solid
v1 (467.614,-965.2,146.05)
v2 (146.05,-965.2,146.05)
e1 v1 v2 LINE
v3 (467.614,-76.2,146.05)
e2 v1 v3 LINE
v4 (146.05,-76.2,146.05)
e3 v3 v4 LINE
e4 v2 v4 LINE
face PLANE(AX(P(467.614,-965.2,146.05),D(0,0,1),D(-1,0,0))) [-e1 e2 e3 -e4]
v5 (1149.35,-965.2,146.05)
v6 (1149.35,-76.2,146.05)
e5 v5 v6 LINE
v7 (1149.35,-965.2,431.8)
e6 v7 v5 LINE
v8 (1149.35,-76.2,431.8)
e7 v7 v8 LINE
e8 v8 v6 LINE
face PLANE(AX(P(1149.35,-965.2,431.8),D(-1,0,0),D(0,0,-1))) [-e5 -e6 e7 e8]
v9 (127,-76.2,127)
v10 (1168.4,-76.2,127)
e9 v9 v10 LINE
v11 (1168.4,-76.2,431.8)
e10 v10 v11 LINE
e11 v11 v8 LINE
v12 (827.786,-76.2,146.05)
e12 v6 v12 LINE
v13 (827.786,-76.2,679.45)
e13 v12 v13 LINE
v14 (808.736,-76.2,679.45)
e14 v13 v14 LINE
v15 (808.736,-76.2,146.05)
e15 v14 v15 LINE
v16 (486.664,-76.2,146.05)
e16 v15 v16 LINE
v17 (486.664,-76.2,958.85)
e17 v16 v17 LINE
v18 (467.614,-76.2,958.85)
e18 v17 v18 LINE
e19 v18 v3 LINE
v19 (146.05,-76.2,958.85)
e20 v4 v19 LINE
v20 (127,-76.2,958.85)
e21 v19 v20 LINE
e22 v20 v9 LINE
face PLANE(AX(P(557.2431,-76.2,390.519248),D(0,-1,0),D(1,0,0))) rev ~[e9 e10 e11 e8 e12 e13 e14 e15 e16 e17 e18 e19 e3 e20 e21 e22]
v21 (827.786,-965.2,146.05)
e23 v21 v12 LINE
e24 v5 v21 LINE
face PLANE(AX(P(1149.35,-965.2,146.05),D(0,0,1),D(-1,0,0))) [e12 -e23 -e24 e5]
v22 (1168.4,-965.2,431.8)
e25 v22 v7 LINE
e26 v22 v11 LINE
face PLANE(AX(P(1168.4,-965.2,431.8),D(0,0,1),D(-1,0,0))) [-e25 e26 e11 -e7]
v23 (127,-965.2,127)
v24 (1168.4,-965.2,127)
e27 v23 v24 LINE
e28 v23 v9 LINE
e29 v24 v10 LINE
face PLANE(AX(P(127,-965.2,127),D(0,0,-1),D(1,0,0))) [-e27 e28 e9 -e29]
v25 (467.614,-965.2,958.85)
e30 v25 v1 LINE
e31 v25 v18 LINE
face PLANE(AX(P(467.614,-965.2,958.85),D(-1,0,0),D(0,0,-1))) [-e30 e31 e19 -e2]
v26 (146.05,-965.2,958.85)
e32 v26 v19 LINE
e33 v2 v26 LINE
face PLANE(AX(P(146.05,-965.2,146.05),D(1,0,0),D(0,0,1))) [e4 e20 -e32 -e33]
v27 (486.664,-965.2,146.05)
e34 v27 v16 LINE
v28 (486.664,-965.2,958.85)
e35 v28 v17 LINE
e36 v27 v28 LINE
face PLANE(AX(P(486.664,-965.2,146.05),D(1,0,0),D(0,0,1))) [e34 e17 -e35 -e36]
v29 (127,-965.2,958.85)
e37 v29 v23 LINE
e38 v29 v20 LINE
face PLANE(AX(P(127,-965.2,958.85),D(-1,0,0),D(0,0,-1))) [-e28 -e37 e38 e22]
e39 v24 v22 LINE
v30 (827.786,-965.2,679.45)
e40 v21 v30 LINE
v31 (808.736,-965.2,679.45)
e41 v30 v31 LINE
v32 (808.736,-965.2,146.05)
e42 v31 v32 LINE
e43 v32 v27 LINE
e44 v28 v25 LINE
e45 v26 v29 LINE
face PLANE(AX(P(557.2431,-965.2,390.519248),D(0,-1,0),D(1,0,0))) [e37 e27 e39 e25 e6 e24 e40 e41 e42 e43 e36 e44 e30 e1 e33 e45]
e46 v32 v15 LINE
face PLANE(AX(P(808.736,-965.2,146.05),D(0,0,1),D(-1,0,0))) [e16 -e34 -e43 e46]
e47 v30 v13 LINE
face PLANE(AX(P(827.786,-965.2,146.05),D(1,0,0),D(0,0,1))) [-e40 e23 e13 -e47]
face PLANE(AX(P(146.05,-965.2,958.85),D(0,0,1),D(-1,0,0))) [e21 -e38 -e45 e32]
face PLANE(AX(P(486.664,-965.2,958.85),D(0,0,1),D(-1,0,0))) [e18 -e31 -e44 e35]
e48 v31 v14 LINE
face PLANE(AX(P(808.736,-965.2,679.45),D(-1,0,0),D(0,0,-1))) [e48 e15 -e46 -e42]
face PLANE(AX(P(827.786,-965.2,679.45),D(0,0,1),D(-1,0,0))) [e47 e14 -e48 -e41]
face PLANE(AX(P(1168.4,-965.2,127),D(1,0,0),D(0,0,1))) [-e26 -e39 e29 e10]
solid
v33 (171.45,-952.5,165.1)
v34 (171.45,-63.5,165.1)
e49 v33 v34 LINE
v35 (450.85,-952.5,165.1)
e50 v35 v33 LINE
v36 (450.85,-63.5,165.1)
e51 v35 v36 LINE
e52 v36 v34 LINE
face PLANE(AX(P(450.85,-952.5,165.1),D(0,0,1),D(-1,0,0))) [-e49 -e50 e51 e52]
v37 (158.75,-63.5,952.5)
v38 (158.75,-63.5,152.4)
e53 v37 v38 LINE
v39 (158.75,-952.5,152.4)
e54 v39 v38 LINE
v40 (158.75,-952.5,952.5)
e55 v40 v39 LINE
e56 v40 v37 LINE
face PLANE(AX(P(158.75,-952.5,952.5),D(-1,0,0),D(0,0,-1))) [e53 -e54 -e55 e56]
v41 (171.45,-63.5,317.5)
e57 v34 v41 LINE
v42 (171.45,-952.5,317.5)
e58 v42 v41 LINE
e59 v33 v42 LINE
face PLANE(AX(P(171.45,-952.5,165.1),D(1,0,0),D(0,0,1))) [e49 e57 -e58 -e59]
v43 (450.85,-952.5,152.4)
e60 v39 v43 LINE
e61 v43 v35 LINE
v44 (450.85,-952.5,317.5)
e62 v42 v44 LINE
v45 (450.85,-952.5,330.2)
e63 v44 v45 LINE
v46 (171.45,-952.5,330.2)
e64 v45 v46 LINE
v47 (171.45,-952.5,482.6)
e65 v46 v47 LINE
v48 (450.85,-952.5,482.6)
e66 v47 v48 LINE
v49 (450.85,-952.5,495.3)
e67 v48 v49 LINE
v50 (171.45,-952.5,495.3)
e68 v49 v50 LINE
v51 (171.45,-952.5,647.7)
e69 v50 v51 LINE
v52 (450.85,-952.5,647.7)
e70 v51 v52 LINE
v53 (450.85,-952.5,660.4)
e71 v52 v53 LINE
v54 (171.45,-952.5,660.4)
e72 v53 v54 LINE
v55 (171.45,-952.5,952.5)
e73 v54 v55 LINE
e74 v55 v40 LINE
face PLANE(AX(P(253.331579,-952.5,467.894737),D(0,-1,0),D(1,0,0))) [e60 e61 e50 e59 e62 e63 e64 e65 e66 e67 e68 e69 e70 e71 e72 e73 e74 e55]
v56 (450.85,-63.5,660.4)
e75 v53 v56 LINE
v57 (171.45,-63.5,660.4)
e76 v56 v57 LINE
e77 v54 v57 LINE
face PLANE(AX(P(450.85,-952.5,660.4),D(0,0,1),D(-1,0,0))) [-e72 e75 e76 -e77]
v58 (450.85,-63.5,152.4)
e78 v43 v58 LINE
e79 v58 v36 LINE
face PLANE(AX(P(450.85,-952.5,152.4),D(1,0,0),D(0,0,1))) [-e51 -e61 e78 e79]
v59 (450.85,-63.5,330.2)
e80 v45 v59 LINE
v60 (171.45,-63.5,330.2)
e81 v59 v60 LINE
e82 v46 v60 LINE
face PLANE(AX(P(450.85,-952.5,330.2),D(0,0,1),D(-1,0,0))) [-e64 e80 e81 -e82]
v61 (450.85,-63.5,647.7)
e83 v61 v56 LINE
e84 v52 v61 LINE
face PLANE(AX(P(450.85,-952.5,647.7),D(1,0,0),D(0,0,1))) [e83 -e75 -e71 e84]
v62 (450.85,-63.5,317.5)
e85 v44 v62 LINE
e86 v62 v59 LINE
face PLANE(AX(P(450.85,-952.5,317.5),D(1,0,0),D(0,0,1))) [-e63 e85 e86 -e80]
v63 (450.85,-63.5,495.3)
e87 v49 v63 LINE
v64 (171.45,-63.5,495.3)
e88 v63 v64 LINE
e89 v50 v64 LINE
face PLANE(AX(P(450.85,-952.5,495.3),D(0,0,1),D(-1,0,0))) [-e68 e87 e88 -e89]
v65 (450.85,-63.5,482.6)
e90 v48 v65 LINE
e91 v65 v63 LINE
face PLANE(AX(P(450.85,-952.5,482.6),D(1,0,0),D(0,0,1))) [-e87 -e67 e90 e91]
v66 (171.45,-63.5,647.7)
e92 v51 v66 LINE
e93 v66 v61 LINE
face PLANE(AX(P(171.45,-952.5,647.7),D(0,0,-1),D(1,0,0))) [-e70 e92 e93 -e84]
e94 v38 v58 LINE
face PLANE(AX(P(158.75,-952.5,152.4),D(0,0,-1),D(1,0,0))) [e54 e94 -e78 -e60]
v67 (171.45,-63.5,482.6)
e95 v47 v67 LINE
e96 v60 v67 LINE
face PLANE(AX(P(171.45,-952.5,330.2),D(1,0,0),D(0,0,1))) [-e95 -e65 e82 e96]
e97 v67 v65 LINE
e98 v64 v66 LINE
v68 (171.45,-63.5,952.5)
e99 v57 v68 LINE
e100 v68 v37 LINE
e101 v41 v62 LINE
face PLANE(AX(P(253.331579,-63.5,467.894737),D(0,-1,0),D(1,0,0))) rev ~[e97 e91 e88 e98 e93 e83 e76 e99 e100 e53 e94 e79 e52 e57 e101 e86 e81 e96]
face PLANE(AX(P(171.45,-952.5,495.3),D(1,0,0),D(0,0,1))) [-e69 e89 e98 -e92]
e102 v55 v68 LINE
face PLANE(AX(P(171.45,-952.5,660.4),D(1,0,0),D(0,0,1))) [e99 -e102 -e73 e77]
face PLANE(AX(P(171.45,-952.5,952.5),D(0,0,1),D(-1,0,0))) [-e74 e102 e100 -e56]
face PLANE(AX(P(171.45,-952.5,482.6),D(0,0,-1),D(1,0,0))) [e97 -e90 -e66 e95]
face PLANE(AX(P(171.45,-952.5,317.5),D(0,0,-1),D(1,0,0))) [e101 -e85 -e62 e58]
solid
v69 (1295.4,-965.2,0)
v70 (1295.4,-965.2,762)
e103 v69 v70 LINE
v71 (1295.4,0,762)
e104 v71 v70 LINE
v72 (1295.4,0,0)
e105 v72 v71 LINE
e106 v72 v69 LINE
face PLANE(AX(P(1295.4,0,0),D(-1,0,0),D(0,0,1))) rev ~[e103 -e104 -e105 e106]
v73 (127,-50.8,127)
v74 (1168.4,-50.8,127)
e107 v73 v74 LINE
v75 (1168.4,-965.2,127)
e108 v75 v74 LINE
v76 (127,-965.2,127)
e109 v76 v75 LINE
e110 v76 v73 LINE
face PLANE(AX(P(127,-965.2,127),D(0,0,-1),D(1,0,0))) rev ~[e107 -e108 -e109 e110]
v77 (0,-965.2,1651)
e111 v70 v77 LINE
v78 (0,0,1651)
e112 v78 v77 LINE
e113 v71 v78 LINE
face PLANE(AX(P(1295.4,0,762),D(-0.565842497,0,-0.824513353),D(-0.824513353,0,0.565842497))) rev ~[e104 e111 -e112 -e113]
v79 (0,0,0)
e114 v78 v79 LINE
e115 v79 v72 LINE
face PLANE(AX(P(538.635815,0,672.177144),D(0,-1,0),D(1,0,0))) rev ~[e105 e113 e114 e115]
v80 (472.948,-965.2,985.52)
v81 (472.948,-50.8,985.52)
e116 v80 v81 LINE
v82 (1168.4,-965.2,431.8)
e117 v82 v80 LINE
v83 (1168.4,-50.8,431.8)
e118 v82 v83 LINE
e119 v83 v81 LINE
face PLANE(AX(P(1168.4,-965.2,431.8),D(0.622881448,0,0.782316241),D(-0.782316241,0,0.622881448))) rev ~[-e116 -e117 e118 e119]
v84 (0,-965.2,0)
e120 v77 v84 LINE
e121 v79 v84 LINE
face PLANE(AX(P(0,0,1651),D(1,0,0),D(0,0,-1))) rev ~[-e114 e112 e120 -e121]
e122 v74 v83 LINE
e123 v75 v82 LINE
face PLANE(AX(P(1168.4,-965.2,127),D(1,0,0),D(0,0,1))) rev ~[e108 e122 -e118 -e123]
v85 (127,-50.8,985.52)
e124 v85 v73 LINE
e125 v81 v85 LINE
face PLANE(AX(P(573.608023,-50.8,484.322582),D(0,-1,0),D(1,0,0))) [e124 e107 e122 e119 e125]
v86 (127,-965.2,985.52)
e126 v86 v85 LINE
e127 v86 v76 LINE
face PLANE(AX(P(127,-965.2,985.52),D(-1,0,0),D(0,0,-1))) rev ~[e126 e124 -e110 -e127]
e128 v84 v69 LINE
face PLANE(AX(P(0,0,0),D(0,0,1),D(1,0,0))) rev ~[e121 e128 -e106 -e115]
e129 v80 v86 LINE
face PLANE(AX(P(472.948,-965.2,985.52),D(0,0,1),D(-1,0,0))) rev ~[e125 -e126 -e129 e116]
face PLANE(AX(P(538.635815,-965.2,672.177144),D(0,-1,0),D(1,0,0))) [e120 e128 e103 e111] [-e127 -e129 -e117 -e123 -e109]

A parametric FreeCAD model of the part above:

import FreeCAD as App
import Part
import Sketcher

V = App.Vector
Q = App.Units.Quantity

doc = App.newDocument("Part")
body = doc.addObject("PartDesign::Body", "Body")

# Sketch on XZ plane
sketch1 = doc.addObject("Sketcher::SketchObject", "Sketch")
body.addObject(sketch1)
sketch1.AttachmentSupport = (doc.XZ_Plane, [""])
sketch1.MapMode = "FlatFace"
sketch1.addGeometry([
    Part.LineSegment(V(0, 1651, 0), V(0, 0, 0)),
    Part.LineSegment(V(0, 0, 0), V(1295, 0, 0)),
    Part.LineSegment(V(1295, 0, 0), V(1295, 762, 0)),
    Part.LineSegment(V(1295, 762, 0), V(0, 1651, 0)),
], False)
sketch1.addConstraint([
    Sketcher.Constraint("Coincident", 0, 2, 1, 1),
    Sketcher.Constraint("Coincident", 1, 2, 2, 1),
    Sketcher.Constraint("Coincident", 2, 2, 3, 1),
    Sketcher.Constraint("Coincident", 3, 2, 0, 1),
    Sketcher.Constraint("Vertical", 0),
    Sketcher.Constraint("Horizontal", 1),
    Sketcher.Constraint("Vertical", 2),
    Sketcher.Constraint("Coincident", 0, 2, -1, 1),
    Sketcher.Constraint("DistanceX", 1, 1, 1, 2, Q("51 in")),
    Sketcher.Constraint("DistanceY", 0, 2, 0, 1, Q("65 in")),
    Sketcher.Constraint("DistanceY", 2, 1, 2, 2, Q("30 in")),
])
pad1 = doc.addObject("PartDesign::Pad", "Pad")
body.addObject(pad1)
pad1.Profile = sketch1
pad1.Length = Q("38 in")

# Sketch on XZ plane
sketch2 = doc.addObject("Sketcher::SketchObject", "Sketch001")
body.addObject(sketch2)
sketch2.AttachmentSupport = (doc.XZ_Plane, [""])
sketch2.MapMode = "FlatFace"
sketch2.AttachmentOffset = App.Placement(V(0, 0, 38 * 25.4), App.Rotation())
sketch2.addGeometry([
    Part.LineSegment(V(127, 986, 0), V(127, 127, 0)),  # 0
    Part.LineSegment(V(127, 127, 0), V(1168, 127, 0)),  # 1
    Part.LineSegment(V(1168, 127, 0), V(1168, 432, 0)),  # 2
    Part.LineSegment(V(1168, 432, 0), V(473, 986, 0)),  # 3
    Part.LineSegment(V(473, 986, 0), V(127, 986, 0)),  # 4
], False)
sketch2.addConstraint([
    Sketcher.Constraint("Coincident", 0, 2, 1, 1),
    Sketcher.Constraint("Coincident", 1, 2, 2, 1),
    Sketcher.Constraint("Coincident", 2, 2, 3, 1),
    Sketcher.Constraint("Coincident", 3, 2, 4, 1),
    Sketcher.Constraint("Coincident", 4, 2, 0, 1),
    Sketcher.Constraint("Vertical", 0),
    Sketcher.Constraint("Horizontal", 1),
    Sketcher.Constraint("Vertical", 2),
    Sketcher.Constraint("Horizontal", 4),
    Sketcher.Constraint("DistanceX", 1, 1, 1, 2, Q("41 in")),
    Sketcher.Constraint("DistanceY", 2, 1, 2, 2, Q("12 in")),
    Sketcher.Constraint("DistanceY", 0, 2, 0, 1, Q("33.8 in")),
    Sketcher.Constraint("DistanceX", -1, 1, 0, 2, Q("5 in")),
    Sketcher.Constraint("DistanceY", -1, 1, 0, 2, Q("5 in")),
    Sketcher.Constraint("DistanceX", 4, 2, 4, 1, Q("13.62 in")),
])
pocket1 = doc.addObject("PartDesign::Pocket", "Pocket")
body.addObject(pocket1)
pocket1.Profile = sketch2
pocket1.Length = Q("36 in")
body2 = doc.addObject("PartDesign::Body", "Body001")

# Sketch on XZ plane
sketch3 = doc.addObject("Sketcher::SketchObject", "Sketch002")
body2.addObject(sketch3)
sketch3.AttachmentSupport = (doc.getObject("XZ_Plane001"), [""])
sketch3.MapMode = "FlatFace"
sketch3.AttachmentOffset = App.Placement(V(0, 0, 38 * 25.4), App.Rotation())
sketch3.addGeometry([
    Part.LineSegment(V(127, 959, 0), V(127, 127, 0)),  # 0
    Part.LineSegment(V(127, 127, 0), V(1168, 127, 0)),  # 1
    Part.LineSegment(V(1168, 127, 0), V(1168, 432, 0)),  # 2
    Part.LineSegment(V(1168, 432, 0), V(1149, 432, 0)),  # 3
    Part.LineSegment(V(1149, 432, 0), V(1149, 146, 0)),  # 4
    Part.LineSegment(V(1149, 146, 0), V(828, 146, 0)),  # 5
    Part.LineSegment(V(828, 146, 0), V(828, 679, 0)),  # 6
    Part.LineSegment(V(828, 679, 0), V(809, 679, 0)),  # 7
    Part.LineSegment(V(809, 679, 0), V(809, 146, 0)),  # 8
    Part.LineSegment(V(809, 146, 0), V(487, 146, 0)),  # 9
    Part.LineSegment(V(487, 146, 0), V(487, 959, 0)),  # 10
    Part.LineSegment(V(487, 959, 0), V(468, 959, 0)),  # 11
    Part.LineSegment(V(468, 959, 0), V(468, 146, 0)),  # 12
    Part.LineSegment(V(468, 146, 0), V(146, 146, 0)),  # 13
    Part.LineSegment(V(146, 146, 0), V(146, 959, 0)),  # 14
    Part.LineSegment(V(146, 959, 0), V(127, 959, 0)),  # 15
], False)
sketch3.addConstraint([
    Sketcher.Constraint("Coincident", 0, 2, 1, 1),
    Sketcher.Constraint("Coincident", 1, 2, 2, 1),
    Sketcher.Constraint("Coincident", 2, 2, 3, 1),
    Sketcher.Constraint("Coincident", 3, 2, 4, 1),
    Sketcher.Constraint("Coincident", 4, 2, 5, 1),
    Sketcher.Constraint("Coincident", 5, 2, 6, 1),
    Sketcher.Constraint("Coincident", 6, 2, 7, 1),
    Sketcher.Constraint("Coincident", 7, 2, 8, 1),
    Sketcher.Constraint("Coincident", 8, 2, 9, 1),
    Sketcher.Constraint("Coincident", 9, 2, 10, 1),
    Sketcher.Constraint("Coincident", 10, 2, 11, 1),
    Sketcher.Constraint("Coincident", 11, 2, 12, 1),
    Sketcher.Constraint("Coincident", 12, 2, 13, 1),
    Sketcher.Constraint("Coincident", 13, 2, 14, 1),
    Sketcher.Constraint("Coincident", 14, 2, 15, 1),
    Sketcher.Constraint("Coincident", 15, 2, 0, 1),
    Sketcher.Constraint("Vertical", 0),
    Sketcher.Constraint("Horizontal", 1),
    Sketcher.Constraint("Vertical", 2),
    Sketcher.Constraint("Horizontal", 3),
    Sketcher.Constraint("Vertical", 4),
    Sketcher.Constraint("Horizontal", 5),
    Sketcher.Constraint("Vertical", 6),
    Sketcher.Constraint("Horizontal", 7),
    Sketcher.Constraint("Vertical", 8),
    Sketcher.Constraint("Horizontal", 9),
    Sketcher.Constraint("Vertical", 10),
    Sketcher.Constraint("Horizontal", 11),
    Sketcher.Constraint("Vertical", 12),
    Sketcher.Constraint("Horizontal", 13),
    Sketcher.Constraint("Vertical", 14),
    Sketcher.Constraint("Horizontal", 15),
    Sketcher.Constraint("Horizontal", 5, 2, 8, 2),
    Sketcher.Constraint("Horizontal", 9, 2, 12, 2),
    Sketcher.Constraint("Horizontal", 11, 2, 14, 2),
    Sketcher.Constraint("Equal", 3, 7),
    Sketcher.Constraint("Equal", 7, 11),
    Sketcher.Constraint("Equal", 5, 13),
    Sketcher.Constraint("Equal", 11, 15),
    Sketcher.Constraint("DistanceX", 1, 1, 1, 2, Q("41 in")),
    Sketcher.Constraint("DistanceY", 2, 1, 2, 2, Q("12 in")),
    Sketcher.Constraint("DistanceY", 6, 1, 6, 2, Q("21 in")),
    Sketcher.Constraint("DistanceY", 10, 1, 10, 2, Q("32 in")),
    Sketcher.Constraint("DistanceX", -1, 1, 0, 2, Q("5 in")),
    Sketcher.Constraint("DistanceY", -1, 1, 0, 2, Q("5 in")),
    Sketcher.Constraint("DistanceX", 3, 2, 3, 1, Q("0.75 in")),
    Sketcher.Constraint("DistanceX", 5, 2, 5, 1, Q("12.66 in")),
    Sketcher.Constraint("DistanceY", 0, 2, 0, 1, Q("32.75 in")),
])
pad2 = doc.addObject("PartDesign::Pad", "Pad001")
body2.addObject(pad2)
pad2.Profile = sketch3
pad2.Length = Q("35 in")
pad2.Reversed = True
body3 = doc.addObject("PartDesign::Body", "Body002")

# Sketch on XZ plane
sketch4 = doc.addObject("Sketcher::SketchObject", "Sketch003")
body3.addObject(sketch4)
sketch4.AttachmentSupport = (doc.getObject("XZ_Plane002"), [""])
sketch4.MapMode = "FlatFace"
sketch4.AttachmentOffset = App.Placement(V(0, 0, 37.5 * 25.4), App.Rotation())
sketch4.addGeometry([
    Part.LineSegment(V(159, 952, 0), V(159, 152, 0)),  # 0
    Part.LineSegment(V(159, 152, 0), V(451, 152, 0)),  # 1
    Part.LineSegment(V(451, 152, 0), V(451, 165, 0)),  # 2
    Part.LineSegment(V(451, 165, 0), V(171, 165, 0)),  # 3
    Part.LineSegment(V(171, 165, 0), V(171, 318, 0)),  # 4
    Part.LineSegment(V(171, 318, 0), V(451, 318, 0)),  # 5
    Part.LineSegment(V(451, 318, 0), V(451, 330, 0)),  # 6
    Part.LineSegment(V(451, 330, 0), V(171, 330, 0)),  # 7
    Part.LineSegment(V(171, 330, 0), V(171, 483, 0)),  # 8
    Part.LineSegment(V(171, 483, 0), V(451, 483, 0)),  # 9
    Part.LineSegment(V(451, 483, 0), V(451, 495, 0)),  # 10
    Part.LineSegment(V(451, 495, 0), V(171, 495, 0)),  # 11
    Part.LineSegment(V(171, 495, 0), V(171, 648, 0)),  # 12
    Part.LineSegment(V(171, 648, 0), V(451, 648, 0)),  # 13
    Part.LineSegment(V(451, 648, 0), V(451, 660, 0)),  # 14
    Part.LineSegment(V(451, 660, 0), V(171, 660, 0)),  # 15
    Part.LineSegment(V(171, 660, 0), V(171, 952, 0)),  # 16
    Part.LineSegment(V(171, 952, 0), V(159, 952, 0)),  # 17
], False)
sketch4.addConstraint([
    Sketcher.Constraint("Coincident", 0, 2, 1, 1),
    Sketcher.Constraint("Coincident", 1, 2, 2, 1),
    Sketcher.Constraint("Coincident", 2, 2, 3, 1),
    Sketcher.Constraint("Coincident", 3, 2, 4, 1),
    Sketcher.Constraint("Coincident", 4, 2, 5, 1),
    Sketcher.Constraint("Coincident", 5, 2, 6, 1),
    Sketcher.Constraint("Coincident", 6, 2, 7, 1),
    Sketcher.Constraint("Coincident", 7, 2, 8, 1),
    Sketcher.Constraint("Coincident", 8, 2, 9, 1),
    Sketcher.Constraint("Coincident", 9, 2, 10, 1),
    Sketcher.Constraint("Coincident", 10, 2, 11, 1),
    Sketcher.Constraint("Coincident", 11, 2, 12, 1),
    Sketcher.Constraint("Coincident", 12, 2, 13, 1),
    Sketcher.Constraint("Coincident", 13, 2, 14, 1),
    Sketcher.Constraint("Coincident", 14, 2, 15, 1),
    Sketcher.Constraint("Coincident", 15, 2, 16, 1),
    Sketcher.Constraint("Coincident", 16, 2, 17, 1),
    Sketcher.Constraint("Coincident", 17, 2, 0, 1),
    Sketcher.Constraint("Vertical", 0),
    Sketcher.Constraint("Horizontal", 1),
    Sketcher.Constraint("Vertical", 2),
    Sketcher.Constraint("Horizontal", 3),
    Sketcher.Constraint("Vertical", 4),
    Sketcher.Constraint("Horizontal", 5),
    Sketcher.Constraint("Vertical", 6),
    Sketcher.Constraint("Horizontal", 7),
    Sketcher.Constraint("Vertical", 8),
    Sketcher.Constraint("Horizontal", 9),
    Sketcher.Constraint("Vertical", 10),
    Sketcher.Constraint("Horizontal", 11),
    Sketcher.Constraint("Vertical", 12),
    Sketcher.Constraint("Horizontal", 13),
    Sketcher.Constraint("Vertical", 14),
    Sketcher.Constraint("Horizontal", 15),
    Sketcher.Constraint("Vertical", 16),
    Sketcher.Constraint("Horizontal", 17),
    Sketcher.Constraint("Vertical", 2, 2, 5, 2),
    Sketcher.Constraint("Vertical", 4, 2, 7, 2),
    Sketcher.Constraint("Vertical", 6, 2, 9, 2),
    Sketcher.Constraint("Vertical", 8, 2, 11, 2),
    Sketcher.Constraint("Vertical", 10, 2, 13, 2),
    Sketcher.Constraint("Vertical", 12, 2, 15, 2),
    Sketcher.Constraint("Equal", 17, 2),
    Sketcher.Constraint("Equal", 2, 6),
    Sketcher.Constraint("Equal", 4, 8),
    Sketcher.Constraint("Equal", 6, 10),
    Sketcher.Constraint("Equal", 8, 12),
    Sketcher.Constraint("Equal", 10, 14),
    Sketcher.Constraint("Equal", 1, 16),
    Sketcher.Constraint("DistanceX", 3, 2, 3, 1, Q("11 in")),
    Sketcher.Constraint("DistanceY", 4, 1, 4, 2, Q("6 in")),
    Sketcher.Constraint("DistanceX", 1, 1, 1, 2, Q("11.5 in")),
    Sketcher.Constraint("DistanceY", -1, 1, 0, 2, Q("6 in")),
    Sketcher.Constraint("DistanceX", -1, 1, 0, 2, Q("6.25 in")),
])
pad3 = doc.addObject("PartDesign::Pad", "Pad002")
body3.addObject(pad3)
pad3.Profile = sketch4
pad3.Length = Q("35 in")
pad3.Reversed = True

doc.recompute()
